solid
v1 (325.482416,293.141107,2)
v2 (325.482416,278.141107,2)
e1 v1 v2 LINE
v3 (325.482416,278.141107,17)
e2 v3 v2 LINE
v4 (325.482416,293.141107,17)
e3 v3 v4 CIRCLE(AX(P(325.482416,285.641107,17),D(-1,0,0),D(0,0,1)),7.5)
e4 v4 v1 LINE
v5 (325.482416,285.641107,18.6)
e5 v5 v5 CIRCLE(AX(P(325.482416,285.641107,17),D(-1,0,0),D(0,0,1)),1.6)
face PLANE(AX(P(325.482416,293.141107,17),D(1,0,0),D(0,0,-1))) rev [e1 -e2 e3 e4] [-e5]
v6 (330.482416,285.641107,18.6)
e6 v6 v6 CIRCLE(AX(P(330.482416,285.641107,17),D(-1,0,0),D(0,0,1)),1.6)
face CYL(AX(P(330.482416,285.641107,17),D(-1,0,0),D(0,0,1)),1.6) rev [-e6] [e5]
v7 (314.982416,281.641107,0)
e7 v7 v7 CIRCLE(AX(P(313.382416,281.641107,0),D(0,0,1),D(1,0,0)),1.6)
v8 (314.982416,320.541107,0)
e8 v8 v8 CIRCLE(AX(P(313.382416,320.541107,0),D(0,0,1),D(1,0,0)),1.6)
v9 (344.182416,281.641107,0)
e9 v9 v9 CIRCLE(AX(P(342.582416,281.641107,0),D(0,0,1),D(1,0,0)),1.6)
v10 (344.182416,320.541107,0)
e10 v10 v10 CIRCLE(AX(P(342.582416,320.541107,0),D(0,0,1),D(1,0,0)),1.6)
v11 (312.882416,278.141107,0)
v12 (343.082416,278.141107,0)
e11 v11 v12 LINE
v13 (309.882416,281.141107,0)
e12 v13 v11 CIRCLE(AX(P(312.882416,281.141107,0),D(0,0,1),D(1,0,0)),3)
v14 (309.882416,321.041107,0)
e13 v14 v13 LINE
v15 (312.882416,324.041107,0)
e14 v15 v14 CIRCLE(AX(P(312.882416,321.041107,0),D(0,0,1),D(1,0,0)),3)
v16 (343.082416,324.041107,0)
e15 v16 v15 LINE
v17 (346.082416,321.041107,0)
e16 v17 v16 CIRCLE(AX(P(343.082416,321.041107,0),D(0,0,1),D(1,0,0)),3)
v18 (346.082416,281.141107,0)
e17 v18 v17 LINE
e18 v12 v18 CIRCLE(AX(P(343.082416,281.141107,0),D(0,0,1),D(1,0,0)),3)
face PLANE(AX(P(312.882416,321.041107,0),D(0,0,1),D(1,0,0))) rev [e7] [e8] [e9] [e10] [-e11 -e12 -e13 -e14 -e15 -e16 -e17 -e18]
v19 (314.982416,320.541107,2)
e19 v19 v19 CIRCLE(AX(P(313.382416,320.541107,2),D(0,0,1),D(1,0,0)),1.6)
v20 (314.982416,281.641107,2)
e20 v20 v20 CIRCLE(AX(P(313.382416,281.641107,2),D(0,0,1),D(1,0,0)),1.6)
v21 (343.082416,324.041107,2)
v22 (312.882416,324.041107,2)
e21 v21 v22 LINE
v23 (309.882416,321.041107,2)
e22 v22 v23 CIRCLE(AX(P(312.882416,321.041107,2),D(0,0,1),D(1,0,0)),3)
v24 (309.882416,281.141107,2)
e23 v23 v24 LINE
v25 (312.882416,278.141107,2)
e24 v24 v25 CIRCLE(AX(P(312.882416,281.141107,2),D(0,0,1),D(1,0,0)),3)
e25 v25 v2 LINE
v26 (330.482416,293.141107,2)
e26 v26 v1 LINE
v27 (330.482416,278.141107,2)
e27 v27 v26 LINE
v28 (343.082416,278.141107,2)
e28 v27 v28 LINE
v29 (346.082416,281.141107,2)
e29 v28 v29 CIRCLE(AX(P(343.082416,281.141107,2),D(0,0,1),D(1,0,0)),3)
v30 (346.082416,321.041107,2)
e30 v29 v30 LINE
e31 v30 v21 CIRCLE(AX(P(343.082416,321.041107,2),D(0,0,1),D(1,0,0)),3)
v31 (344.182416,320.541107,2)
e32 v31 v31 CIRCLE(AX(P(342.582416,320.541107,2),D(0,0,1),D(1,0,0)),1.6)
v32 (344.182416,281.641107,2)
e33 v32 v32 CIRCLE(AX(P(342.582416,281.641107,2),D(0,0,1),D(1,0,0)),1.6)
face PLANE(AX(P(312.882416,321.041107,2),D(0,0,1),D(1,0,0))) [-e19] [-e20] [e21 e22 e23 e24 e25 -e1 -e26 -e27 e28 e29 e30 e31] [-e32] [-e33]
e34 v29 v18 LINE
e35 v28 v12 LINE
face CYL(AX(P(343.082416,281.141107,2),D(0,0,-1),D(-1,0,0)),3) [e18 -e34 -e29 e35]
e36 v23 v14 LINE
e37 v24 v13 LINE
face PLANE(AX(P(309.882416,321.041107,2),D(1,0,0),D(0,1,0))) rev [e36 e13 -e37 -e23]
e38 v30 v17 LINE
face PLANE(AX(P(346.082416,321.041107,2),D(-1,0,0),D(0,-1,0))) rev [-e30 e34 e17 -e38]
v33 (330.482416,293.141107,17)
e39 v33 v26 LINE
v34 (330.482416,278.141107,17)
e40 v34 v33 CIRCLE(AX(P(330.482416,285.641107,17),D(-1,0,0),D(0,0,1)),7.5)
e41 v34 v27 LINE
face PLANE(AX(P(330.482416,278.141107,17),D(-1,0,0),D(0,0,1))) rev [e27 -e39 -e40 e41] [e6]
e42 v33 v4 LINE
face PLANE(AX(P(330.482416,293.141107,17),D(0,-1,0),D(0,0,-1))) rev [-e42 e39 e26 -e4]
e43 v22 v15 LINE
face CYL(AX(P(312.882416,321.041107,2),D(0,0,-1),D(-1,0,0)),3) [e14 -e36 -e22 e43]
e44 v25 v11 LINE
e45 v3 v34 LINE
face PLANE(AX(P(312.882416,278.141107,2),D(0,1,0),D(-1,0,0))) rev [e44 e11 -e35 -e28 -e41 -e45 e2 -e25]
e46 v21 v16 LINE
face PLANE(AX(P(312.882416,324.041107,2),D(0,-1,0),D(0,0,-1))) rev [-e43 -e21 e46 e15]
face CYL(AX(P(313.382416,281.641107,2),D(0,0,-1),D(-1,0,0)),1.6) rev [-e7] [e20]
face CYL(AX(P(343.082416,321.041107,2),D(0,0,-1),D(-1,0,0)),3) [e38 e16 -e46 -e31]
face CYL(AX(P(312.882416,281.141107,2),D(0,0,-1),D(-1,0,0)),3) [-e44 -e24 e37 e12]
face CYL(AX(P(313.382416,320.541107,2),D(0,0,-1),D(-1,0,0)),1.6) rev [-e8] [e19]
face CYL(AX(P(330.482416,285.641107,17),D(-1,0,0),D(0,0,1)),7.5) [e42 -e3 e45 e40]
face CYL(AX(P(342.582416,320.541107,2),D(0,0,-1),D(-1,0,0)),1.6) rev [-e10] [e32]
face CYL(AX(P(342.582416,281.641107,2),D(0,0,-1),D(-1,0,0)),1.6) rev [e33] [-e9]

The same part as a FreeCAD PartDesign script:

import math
import FreeCAD as App
import Part
import Sketcher
from FreeCAD import Vector

doc = App.newDocument("Part")
params = doc.addObject("Spreadsheet::Sheet", "Params")
for row, (alias, value) in enumerate([
    ("sketch1_radius", "3 mm"),
    ("sketch1_diameter", "3.2 mm"),
    ("sketch1_width", "30.2 mm"),
    ("sketch1_height", "39.9 mm"),
    ("pad1_length", "2 mm"),
    ("sketch2_width", "5 mm"),
    ("sketch2_height", "15 mm"),
    ("pad2_length", "15 mm"),
    ("sketch3_radius", "7.5 mm"),
    ("pad3_length", "5 mm"),
    ("sketch4_diameter", "3.2 mm"),
    ("pocket1_length", "5 mm"),
], start=1):
    params.set(f"A{row}", alias)
    params.set(f"B{row}", "=" + value)
    params.setAlias(f"B{row}", alias)

body = doc.addObject("PartDesign::Body", "Body")

# Sketch on XY plane
sketch1 = body.newObject("Sketcher::SketchObject", "Sketch")
sketch1.AttachmentSupport = (doc.getObject("XY_Plane"), [""])
sketch1.MapMode = "FlatFace"
sketch1.addGeometry([
    Part.LineSegment(Vector(343.1, 324, 0), Vector(312.9, 324, 0)),  # 0
    Part.ArcOfCircle(Part.Circle(Vector(312.9, 321, 0), Vector(0, 0, 1), 3), math.radians(90), math.radians(180)),  # 1
    Part.LineSegment(Vector(309.9, 321, 0), Vector(309.9, 281.1, 0)),  # 2
    Part.ArcOfCircle(Part.Circle(Vector(312.9, 281.1, 0), Vector(0, 0, 1), 3), math.radians(180), math.radians(270)),  # 3
    Part.LineSegment(Vector(312.9, 278.1, 0), Vector(343.1, 278.1, 0)),  # 4
    Part.ArcOfCircle(Part.Circle(Vector(343.1, 281.1, 0), Vector(0, 0, 1), 3), math.radians(-90), math.radians(0)),  # 5
    Part.LineSegment(Vector(346.1, 281.1, 0), Vector(346.1, 321, 0)),  # 6
    Part.ArcOfCircle(Part.Circle(Vector(343.1, 321, 0), Vector(0, 0, 1), 3), math.radians(0), math.radians(90)),  # 7
    Part.Circle(Vector(342.6, 281.6, 0), Vector(0, 0, 1), 1.6),  # 8
    Part.Circle(Vector(313.4, 281.6, 0), Vector(0, 0, 1), 1.6),  # 9
    Part.Circle(Vector(342.6, 320.5, 0), Vector(0, 0, 1), 1.6),  # 10
    Part.Circle(Vector(313.4, 320.5, 0), Vector(0, 0, 1), 1.6),  # 11
], False)
sketch1.addConstraint([
    Sketcher.Constraint("Tangent", 0, 2, 1, 1),
    Sketcher.Constraint("Tangent", 1, 2, 2, 1),
    Sketcher.Constraint("Tangent", 2, 2, 3, 1),
    Sketcher.Constraint("Tangent", 3, 2, 4, 1),
    Sketcher.Constraint("Tangent", 4, 2, 5, 1),
    Sketcher.Constraint("Tangent", 5, 2, 6, 1),
    Sketcher.Constraint("Tangent", 6, 2, 7, 1),
    Sketcher.Constraint("Tangent", 7, 2, 0, 1),
    Sketcher.Constraint("Horizontal", 0),
    Sketcher.Constraint("Vertical", 2),
    Sketcher.Constraint("Horizontal", 4),
    Sketcher.Constraint("Vertical", 6),
    Sketcher.Constraint("Equal", 1, 3),
    Sketcher.Constraint("Equal", 3, 5),
    Sketcher.Constraint("Equal", 5, 7),
    Sketcher.Constraint("Equal", 8, 9),
    Sketcher.Constraint("Equal", 9, 10),
    Sketcher.Constraint("Equal", 10, 11),
    Sketcher.Constraint("Horizontal", 8, 3, 9, 3),
    Sketcher.Constraint("Horizontal", 10, 3, 11, 3),
    Sketcher.Constraint("Vertical", 8, 3, 10, 3),
    Sketcher.Constraint("Vertical", 9, 3, 11, 3),
    Sketcher.Constraint("Radius", 1, 3.0),
    Sketcher.Constraint("Diameter", 8, 3.2),
    Sketcher.Constraint("DistanceX", 0, 2, 0, 1, 30.2),
    Sketcher.Constraint("DistanceY", 2, 2, 2, 1, 39.9),
    Sketcher.Constraint("DistanceX", 8, 3, 5, 3, 0.5),
    Sketcher.Constraint("DistanceY", 5, 3, 8, 3, 0.5),
    Sketcher.Constraint("DistanceX", 3, 3, 9, 3, 0.5),
    Sketcher.Constraint("DistanceY", 10, 3, 7, 3, 0.5),
    Sketcher.Constraint("DistanceX", -1, 1, 1, 3, 312.882416),
    Sketcher.Constraint("DistanceY", -1, 1, 1, 3, 321.041107),
])
sketch1.setExpression("Constraints[22]", "Params.sketch1_radius")
sketch1.setExpression("Constraints[23]", "Params.sketch1_diameter")
sketch1.setExpression("Constraints[24]", "Params.sketch1_width")
sketch1.setExpression("Constraints[25]", "Params.sketch1_height")
pad1 = body.newObject("PartDesign::Pad", "Pad")
pad1.Profile = sketch1
pad1.setExpression("Length", "Params.pad1_length")

# Sketch on XY plane
sketch2 = body.newObject("Sketcher::SketchObject", "Sketch001")
sketch2.AttachmentSupport = (doc.getObject("XY_Plane"), [""])
sketch2.MapMode = "FlatFace"
sketch2.AttachmentOffset = App.Placement(Vector(0, 0, 2), App.Rotation())
sketch2.addGeometry([
    Part.LineSegment(Vector(325, 293, 0), Vector(325, 278, 0)),
    Part.LineSegment(Vector(325, 278, 0), Vector(330, 278, 0)),
    Part.LineSegment(Vector(330, 278, 0), Vector(330, 293, 0)),
    Part.LineSegment(Vector(330, 293, 0), Vector(325, 293, 0)),
], False)
sketch2.addConstraint([
    Sketcher.Constraint("Coincident", 0, 2, 1, 1),
    Sketcher.Constraint("Coincident", 1, 2, 2, 1),
    Sketcher.Constraint("Coincident", 2, 2, 3, 1),
    Sketcher.Constraint("Coincident", 3, 2, 0, 1),
    Sketcher.Constraint("Vertical", 0),
    Sketcher.Constraint("Horizontal", 1),
    Sketcher.Constraint("Vertical", 2),
    Sketcher.Constraint("Horizontal", 3),
    Sketcher.Constraint("DistanceX", 1, 1, 1, 2, 5.0),
    Sketcher.Constraint("DistanceY", 0, 2, 0, 1, 15.0),
    Sketcher.Constraint("DistanceX", -1, 1, 0, 2, 325.482416),
    Sketcher.Constraint("DistanceY", -1, 1, 0, 2, 278.141107),
])
sketch2.setExpression("Constraints[8]", "Params.sketch2_width")
sketch2.setExpression("Constraints[9]", "Params.sketch2_height")
pad2 = body.newObject("PartDesign::Pad", "Pad001")
pad2.Profile = sketch2
pad2.setExpression("Length", "Params.pad2_length")

# Sketch on YZ plane
sketch3 = body.newObject("Sketcher::SketchObject", "Sketch002")
sketch3.AttachmentSupport = (doc.getObject("YZ_Plane"), [""])
sketch3.MapMode = "FlatFace"
sketch3.AttachmentOffset = App.Placement(Vector(0, 0, 325.482416), App.Rotation())
sketch3.addGeometry([
    Part.LineSegment(Vector(293, 17, 0), Vector(278, 17, 0)),
    Part.ArcOfCircle(Part.Circle(Vector(286, 17, 0), Vector(0, 0, 1), 8), math.radians(0), math.radians(180)),
], False)
sketch3.addConstraint([
    Sketcher.Constraint("Coincident", 0, 1, 1, 1),
    Sketcher.Constraint("Coincident", 1, 2, 0, 2),
    Sketcher.Constraint("Horizontal", 0),
    Sketcher.Constraint("Horizontal", 1, 3, 0, 1),
    Sketcher.Constraint("Radius", 1, 7.5),
    Sketcher.Constraint("DistanceY", -1, 1, 1, 3, 17.0),
    Sketcher.Constraint("DistanceX", -1, 1, 1, 3, 285.641107),
])
sketch3.setExpression("Constraints[4]", "Params.sketch3_radius")
pad3 = body.newObject("PartDesign::Pad", "Pad002")
pad3.Profile = sketch3
pad3.setExpression("Length", "Params.pad3_length")

# Sketch on YZ plane
sketch4 = body.newObject("Sketcher::SketchObject", "Sketch003")
sketch4.AttachmentSupport = (doc.getObject("YZ_Plane"), [""])
sketch4.MapMode = "FlatFace"
sketch4.AttachmentOffset = App.Placement(Vector(0, 0, 325.482416), App.Rotation())
sketch4.addGeometry(Part.Circle(Vector(285.6, 17, 0), Vector(0, 0, 1), 1.6), False)
sketch4.addConstraint([
    Sketcher.Constraint("Diameter", 0, 3.2),
    Sketcher.Constraint("DistanceY", -1, 1, 0, 3, 17.0),
    Sketcher.Constraint("DistanceX", -1, 1, 0, 3, 285.641107),
])
sketch4.setExpression("Constraints[0]", "Params.sketch4_diameter")
pocket1 = body.newObject("PartDesign::Pocket", "Pocket")
pocket1.Profile = sketch4
pocket1.setExpression("Length", "Params.pocket1_length")
pocket1.Reversed = True

doc.recompute()
